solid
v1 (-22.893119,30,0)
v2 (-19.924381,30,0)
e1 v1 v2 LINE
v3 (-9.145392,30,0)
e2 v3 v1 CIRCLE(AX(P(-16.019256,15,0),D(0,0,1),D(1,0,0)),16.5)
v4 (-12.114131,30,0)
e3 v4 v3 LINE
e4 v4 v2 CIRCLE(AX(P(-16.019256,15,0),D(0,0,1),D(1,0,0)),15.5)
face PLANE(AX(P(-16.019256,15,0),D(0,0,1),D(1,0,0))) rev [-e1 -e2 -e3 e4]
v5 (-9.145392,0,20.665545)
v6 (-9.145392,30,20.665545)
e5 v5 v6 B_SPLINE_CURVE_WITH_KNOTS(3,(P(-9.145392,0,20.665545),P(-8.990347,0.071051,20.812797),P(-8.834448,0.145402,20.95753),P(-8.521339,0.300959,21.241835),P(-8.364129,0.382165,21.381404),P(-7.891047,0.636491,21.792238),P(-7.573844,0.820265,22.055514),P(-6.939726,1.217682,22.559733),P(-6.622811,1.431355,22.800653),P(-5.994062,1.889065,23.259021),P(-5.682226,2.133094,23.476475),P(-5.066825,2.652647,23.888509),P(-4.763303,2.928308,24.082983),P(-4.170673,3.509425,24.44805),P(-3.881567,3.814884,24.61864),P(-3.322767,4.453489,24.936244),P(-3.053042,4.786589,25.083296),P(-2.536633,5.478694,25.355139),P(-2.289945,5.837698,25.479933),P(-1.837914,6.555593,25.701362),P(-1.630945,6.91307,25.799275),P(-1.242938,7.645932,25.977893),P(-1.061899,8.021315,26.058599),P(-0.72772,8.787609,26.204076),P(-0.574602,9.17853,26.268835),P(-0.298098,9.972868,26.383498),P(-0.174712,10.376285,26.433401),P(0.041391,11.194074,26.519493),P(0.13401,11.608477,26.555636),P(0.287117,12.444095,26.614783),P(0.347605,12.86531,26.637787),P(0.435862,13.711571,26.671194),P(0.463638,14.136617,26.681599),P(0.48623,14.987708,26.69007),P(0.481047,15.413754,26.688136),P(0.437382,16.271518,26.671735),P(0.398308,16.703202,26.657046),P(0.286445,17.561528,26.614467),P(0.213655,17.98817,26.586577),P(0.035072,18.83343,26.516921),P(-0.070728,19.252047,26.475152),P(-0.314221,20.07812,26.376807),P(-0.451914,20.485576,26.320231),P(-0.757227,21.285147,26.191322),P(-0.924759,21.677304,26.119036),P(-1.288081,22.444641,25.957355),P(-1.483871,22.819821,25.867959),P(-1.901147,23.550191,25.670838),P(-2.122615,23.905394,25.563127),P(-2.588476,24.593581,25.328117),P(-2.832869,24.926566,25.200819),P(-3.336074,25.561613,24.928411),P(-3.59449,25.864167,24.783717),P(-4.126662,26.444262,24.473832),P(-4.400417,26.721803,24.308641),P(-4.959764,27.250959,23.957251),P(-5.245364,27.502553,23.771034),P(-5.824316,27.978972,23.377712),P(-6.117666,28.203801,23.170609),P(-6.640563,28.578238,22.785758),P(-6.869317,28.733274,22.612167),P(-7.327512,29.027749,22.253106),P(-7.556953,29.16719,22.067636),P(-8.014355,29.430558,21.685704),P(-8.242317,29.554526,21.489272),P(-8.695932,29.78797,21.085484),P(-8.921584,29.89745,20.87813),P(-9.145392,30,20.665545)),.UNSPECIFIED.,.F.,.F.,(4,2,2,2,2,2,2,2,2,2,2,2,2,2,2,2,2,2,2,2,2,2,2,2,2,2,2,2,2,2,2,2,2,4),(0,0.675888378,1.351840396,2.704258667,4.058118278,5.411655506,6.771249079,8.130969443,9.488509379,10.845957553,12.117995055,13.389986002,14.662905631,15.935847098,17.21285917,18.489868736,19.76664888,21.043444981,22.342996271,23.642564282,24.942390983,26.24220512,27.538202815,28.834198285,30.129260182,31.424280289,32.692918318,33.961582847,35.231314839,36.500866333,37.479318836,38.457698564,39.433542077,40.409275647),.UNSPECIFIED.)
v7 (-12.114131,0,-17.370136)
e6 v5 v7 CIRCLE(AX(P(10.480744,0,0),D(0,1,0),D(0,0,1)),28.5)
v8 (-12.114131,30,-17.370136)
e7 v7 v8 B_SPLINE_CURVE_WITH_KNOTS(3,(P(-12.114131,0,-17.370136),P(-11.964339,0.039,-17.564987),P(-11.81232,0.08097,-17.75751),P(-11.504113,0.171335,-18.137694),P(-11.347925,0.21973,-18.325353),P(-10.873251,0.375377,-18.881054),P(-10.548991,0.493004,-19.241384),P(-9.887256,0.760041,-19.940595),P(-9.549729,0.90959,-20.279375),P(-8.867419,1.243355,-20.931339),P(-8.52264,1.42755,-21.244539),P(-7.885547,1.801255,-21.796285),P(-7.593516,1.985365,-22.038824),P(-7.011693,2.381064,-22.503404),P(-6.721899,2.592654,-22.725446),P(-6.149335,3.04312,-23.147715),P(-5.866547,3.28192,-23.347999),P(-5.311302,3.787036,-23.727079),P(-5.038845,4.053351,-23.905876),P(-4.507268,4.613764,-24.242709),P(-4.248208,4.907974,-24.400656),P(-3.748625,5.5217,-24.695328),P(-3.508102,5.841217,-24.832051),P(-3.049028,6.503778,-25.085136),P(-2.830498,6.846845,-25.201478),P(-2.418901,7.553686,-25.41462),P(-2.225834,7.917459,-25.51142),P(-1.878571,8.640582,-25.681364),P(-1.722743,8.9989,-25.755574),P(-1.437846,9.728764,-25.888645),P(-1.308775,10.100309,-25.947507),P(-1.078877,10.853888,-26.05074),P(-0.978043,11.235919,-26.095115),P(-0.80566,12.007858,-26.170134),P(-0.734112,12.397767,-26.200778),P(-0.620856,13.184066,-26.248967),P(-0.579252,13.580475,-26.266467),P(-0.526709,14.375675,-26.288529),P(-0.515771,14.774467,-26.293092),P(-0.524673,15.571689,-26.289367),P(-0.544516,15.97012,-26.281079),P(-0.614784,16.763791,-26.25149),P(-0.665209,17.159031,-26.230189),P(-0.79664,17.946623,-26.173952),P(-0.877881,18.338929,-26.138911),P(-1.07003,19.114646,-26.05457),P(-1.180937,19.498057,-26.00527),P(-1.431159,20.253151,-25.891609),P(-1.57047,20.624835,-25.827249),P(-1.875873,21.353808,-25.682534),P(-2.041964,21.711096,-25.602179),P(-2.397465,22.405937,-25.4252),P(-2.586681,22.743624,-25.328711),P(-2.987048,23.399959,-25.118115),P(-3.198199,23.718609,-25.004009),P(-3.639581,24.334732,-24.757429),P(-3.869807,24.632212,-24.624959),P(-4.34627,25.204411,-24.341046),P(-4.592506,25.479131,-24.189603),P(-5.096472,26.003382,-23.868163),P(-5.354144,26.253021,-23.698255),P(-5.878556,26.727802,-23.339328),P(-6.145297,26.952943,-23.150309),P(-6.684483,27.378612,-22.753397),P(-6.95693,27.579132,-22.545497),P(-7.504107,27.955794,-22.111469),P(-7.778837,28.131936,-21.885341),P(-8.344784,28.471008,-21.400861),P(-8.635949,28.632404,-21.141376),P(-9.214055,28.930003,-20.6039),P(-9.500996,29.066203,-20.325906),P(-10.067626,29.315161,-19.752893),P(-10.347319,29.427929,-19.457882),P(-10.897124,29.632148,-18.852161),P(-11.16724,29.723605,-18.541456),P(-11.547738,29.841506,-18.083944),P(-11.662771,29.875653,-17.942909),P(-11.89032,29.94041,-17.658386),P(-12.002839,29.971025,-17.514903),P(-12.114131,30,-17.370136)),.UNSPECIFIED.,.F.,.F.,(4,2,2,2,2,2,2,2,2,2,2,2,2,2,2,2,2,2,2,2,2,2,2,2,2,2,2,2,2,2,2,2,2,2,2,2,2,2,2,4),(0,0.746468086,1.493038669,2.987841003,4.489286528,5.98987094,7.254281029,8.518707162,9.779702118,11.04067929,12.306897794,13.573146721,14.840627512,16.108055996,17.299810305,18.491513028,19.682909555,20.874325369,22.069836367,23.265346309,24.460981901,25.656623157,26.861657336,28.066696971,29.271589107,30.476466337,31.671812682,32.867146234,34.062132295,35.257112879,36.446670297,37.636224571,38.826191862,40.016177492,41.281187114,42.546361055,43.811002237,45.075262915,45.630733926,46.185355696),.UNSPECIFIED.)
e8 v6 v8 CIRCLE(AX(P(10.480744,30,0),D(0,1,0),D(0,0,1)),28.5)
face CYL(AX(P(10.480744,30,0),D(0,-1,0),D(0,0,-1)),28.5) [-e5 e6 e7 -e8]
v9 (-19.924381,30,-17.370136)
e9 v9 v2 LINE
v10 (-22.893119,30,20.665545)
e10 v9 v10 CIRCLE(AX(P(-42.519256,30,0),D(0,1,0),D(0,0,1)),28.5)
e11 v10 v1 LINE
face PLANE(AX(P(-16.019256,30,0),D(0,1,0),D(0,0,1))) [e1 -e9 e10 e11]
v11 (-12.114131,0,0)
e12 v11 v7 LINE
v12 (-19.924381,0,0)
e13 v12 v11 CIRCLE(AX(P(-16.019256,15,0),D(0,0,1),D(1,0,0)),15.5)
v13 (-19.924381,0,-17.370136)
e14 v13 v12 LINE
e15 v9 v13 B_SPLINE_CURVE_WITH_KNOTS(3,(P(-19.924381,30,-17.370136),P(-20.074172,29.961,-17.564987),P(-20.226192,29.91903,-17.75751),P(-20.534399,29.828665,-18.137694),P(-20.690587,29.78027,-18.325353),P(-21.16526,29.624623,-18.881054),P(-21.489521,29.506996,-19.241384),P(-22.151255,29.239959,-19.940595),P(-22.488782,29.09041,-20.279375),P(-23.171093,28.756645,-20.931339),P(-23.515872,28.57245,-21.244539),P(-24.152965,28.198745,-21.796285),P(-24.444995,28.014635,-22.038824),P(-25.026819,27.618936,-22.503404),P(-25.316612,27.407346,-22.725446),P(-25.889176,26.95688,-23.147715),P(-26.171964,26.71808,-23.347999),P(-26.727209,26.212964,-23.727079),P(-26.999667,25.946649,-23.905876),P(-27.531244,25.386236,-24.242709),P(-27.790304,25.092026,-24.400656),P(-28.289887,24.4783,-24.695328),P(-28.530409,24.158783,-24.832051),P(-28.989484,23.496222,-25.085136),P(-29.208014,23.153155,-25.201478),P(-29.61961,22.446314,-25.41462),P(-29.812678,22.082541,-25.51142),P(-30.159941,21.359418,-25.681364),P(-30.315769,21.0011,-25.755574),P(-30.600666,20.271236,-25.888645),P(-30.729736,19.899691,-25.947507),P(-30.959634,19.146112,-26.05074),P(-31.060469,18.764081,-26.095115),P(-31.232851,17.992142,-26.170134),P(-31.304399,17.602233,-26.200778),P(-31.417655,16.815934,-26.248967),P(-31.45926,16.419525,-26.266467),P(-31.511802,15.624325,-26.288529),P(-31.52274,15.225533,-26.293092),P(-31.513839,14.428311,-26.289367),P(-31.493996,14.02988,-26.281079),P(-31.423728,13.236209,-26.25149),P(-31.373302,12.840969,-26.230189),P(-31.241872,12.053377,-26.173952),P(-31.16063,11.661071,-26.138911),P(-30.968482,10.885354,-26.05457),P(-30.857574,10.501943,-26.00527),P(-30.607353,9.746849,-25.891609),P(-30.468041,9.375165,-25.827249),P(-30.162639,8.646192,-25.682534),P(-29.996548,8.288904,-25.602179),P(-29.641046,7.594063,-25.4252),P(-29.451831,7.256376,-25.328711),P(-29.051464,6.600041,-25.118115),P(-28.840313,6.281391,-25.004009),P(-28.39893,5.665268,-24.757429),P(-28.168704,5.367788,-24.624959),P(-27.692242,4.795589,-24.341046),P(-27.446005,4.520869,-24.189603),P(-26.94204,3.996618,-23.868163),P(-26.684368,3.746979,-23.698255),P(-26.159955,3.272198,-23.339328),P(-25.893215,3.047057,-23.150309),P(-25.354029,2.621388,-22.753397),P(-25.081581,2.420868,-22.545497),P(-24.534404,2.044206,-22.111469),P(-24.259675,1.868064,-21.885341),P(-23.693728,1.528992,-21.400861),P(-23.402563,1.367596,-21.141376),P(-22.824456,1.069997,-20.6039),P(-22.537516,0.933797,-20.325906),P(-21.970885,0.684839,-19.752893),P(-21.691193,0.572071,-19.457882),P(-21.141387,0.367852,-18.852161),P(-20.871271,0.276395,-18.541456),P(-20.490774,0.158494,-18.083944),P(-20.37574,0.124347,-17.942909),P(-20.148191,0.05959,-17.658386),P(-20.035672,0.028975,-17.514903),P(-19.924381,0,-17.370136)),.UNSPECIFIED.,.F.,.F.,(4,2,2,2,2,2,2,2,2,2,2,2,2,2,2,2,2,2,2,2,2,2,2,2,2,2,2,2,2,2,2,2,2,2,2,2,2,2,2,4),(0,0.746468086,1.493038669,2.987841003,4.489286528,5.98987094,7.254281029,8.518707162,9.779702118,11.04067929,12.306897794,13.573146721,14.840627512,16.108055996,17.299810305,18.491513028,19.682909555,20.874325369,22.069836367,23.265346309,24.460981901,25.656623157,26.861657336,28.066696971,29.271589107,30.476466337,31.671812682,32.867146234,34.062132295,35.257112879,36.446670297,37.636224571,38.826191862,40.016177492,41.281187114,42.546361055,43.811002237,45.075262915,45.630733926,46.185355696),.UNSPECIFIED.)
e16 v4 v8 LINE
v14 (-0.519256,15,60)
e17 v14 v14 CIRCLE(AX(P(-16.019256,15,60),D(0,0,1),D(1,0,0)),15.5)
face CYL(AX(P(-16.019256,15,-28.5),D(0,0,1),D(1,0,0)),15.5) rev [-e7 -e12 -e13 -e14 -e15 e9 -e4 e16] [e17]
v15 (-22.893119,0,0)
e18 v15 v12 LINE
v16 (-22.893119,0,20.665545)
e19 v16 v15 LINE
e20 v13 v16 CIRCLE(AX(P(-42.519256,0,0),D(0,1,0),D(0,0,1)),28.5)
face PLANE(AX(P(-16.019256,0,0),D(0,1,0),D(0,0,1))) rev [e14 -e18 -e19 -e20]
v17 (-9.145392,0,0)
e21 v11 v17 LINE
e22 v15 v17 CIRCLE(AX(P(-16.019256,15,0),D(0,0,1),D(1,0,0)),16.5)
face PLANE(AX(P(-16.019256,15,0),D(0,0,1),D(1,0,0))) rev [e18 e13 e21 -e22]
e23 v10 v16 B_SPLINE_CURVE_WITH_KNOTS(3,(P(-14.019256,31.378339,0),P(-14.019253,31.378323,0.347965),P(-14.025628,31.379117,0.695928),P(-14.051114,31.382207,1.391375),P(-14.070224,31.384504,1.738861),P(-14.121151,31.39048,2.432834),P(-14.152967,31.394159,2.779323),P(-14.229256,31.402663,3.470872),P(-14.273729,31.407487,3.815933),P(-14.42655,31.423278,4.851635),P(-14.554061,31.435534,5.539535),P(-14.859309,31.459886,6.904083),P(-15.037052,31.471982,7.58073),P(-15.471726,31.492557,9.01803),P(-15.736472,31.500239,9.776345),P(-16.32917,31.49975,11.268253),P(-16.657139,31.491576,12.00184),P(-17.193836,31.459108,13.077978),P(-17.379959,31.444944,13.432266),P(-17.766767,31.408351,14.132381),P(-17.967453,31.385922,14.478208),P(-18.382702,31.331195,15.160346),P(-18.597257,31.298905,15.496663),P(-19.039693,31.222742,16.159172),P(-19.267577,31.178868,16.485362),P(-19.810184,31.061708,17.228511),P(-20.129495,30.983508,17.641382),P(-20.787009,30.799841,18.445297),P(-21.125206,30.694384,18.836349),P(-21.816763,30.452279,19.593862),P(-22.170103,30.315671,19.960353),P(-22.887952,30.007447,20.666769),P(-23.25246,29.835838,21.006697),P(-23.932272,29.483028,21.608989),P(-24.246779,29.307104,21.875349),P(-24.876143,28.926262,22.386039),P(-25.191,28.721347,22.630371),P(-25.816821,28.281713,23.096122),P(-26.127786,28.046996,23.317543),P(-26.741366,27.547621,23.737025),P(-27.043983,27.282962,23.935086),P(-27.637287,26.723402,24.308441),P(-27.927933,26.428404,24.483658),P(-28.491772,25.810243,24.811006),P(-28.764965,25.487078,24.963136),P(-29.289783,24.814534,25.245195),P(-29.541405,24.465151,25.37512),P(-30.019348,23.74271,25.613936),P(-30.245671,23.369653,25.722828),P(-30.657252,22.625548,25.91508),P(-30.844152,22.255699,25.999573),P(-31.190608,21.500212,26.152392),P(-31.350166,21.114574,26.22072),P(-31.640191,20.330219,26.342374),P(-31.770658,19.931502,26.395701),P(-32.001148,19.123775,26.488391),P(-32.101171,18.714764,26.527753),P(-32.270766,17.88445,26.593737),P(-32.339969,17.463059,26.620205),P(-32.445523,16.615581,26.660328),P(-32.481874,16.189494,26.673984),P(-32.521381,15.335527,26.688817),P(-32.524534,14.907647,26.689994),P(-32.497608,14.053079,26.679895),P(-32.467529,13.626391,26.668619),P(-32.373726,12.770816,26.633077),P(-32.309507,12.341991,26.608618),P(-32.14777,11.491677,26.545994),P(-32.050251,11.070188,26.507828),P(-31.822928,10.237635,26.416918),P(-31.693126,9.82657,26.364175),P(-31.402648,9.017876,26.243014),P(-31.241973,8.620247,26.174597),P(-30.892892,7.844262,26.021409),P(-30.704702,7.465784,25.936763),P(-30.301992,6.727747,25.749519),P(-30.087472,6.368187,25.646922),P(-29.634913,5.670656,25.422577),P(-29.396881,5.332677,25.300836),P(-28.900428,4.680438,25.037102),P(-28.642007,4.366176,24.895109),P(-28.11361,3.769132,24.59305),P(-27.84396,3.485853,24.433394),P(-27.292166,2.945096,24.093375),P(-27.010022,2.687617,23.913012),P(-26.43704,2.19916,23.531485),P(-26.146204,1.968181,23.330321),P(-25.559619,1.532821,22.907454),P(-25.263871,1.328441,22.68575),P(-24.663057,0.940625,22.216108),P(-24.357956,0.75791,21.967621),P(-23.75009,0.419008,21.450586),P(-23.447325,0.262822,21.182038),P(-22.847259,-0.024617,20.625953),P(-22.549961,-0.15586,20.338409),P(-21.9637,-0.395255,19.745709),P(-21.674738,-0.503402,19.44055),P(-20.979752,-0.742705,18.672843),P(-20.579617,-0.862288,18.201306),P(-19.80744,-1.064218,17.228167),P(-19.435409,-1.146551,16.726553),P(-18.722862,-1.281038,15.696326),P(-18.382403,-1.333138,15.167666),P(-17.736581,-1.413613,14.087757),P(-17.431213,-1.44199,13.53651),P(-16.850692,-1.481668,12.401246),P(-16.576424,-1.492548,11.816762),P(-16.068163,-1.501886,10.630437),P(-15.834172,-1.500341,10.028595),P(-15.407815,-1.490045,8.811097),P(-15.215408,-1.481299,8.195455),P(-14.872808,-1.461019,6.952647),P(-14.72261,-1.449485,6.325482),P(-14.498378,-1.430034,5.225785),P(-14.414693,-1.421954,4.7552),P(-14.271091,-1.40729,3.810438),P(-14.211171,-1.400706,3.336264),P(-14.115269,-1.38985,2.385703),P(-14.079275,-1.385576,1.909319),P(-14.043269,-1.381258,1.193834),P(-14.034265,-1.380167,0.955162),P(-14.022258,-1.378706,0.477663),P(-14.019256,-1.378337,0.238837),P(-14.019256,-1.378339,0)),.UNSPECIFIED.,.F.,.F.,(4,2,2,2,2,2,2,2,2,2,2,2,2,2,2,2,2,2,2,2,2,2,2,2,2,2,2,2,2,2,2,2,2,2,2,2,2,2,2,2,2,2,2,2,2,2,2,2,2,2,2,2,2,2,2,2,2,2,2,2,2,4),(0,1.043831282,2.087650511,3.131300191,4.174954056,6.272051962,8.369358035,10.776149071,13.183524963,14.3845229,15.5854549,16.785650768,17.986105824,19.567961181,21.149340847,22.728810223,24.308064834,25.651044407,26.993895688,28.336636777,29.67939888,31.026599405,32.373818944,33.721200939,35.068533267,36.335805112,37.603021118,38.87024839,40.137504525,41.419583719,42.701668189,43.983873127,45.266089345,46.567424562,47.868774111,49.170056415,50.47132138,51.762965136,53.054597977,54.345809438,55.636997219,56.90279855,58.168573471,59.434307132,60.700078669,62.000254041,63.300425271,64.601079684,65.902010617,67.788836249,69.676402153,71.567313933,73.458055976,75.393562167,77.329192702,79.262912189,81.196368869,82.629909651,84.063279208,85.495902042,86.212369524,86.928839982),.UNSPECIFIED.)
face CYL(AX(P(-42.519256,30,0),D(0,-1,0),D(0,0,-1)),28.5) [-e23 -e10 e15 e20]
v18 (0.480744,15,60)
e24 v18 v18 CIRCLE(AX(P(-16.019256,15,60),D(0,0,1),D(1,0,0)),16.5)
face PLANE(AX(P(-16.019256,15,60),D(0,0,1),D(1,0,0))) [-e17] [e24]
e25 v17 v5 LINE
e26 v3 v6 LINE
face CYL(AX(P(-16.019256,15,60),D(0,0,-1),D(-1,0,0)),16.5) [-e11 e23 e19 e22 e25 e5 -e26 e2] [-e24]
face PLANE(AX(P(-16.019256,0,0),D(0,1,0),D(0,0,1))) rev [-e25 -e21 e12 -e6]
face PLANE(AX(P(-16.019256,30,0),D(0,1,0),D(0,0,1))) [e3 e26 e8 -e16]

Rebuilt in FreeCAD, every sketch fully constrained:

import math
import FreeCAD as App
import Part
import Sketcher

V = App.Vector

doc = App.newDocument("Part")
params = doc.addObject("Spreadsheet::Sheet", "Params")
for row, (alias, value) in enumerate([
    ("sketch1_radius", "28.5 mm"),
    ("pad1_length", "30 mm"),
    ("sketch2_diameter", "33 mm"),
    ("pad2_length", "60 mm"),
    ("sketch3_diameter", "31 mm"),
], start=1):
    params.set(f"A{row}", alias)
    params.set(f"B{row}", "=" + value)
    params.setAlias(f"B{row}", alias)

body = doc.addObject("PartDesign::Body", "Body")

sketch1 = body.newObject("Sketcher::SketchObject", "Sketch")
sketch1.AttachmentSupport = (doc.getObject("XZ_Plane"), [""])
sketch1.MapMode = "FlatFace"
sketch1.addGeometry([
    Part.ArcOfCircle(Part.Circle(V(-43, 0, 0), V(0, 0, 1), 28), math.radians(22), math.radians(338)),
    Part.ArcOfCircle(Part.Circle(V(10, 0, 0), V(0, 0, 1), 28), math.radians(-158), math.radians(158)),
], False)
sketch1.addConstraint([
    Sketcher.Constraint("Coincident", 0, 1, 1, 2),
    Sketcher.Constraint("Coincident", 1, 1, 0, 2),
    Sketcher.Constraint("Equal", 0, 1),
    Sketcher.Constraint("Symmetric", 0, 1, 1, 1, -1),
    Sketcher.Constraint("Radius", 0, 28.5),
    Sketcher.Constraint("DistanceX", 0, 3, 1, 3, 53.0),
    Sketcher.Constraint("DistanceX", 0, 3, -1, 1, 42.519256),
])
sketch1.setExpression("Constraints[4]", "Params.sketch1_radius")
pad1 = body.newObject("PartDesign::Pad", "Pad")
pad1.Profile = sketch1
pad1.setExpression("Length", "Params.pad1_length")
pad1.Reversed = True

sketch2 = body.newObject("Sketcher::SketchObject", "Sketch001")
sketch2.AttachmentSupport = (doc.getObject("XY_Plane"), [""])
sketch2.MapMode = "FlatFace"
sketch2.addGeometry(Part.Circle(V(-16, 15, 0), V(0, 0, 1), 16), False)
sketch2.addConstraint([
    Sketcher.Constraint("Diameter", 0, 33.0),
    Sketcher.Constraint("DistanceY", -1, 1, 0, 3, 15.0),
    Sketcher.Constraint("DistanceX", 0, 3, -1, 1, 16.019256),
])
sketch2.setExpression("Constraints[0]", "Params.sketch2_diameter")
pad2 = body.newObject("PartDesign::Pad", "Pad001")
pad2.Profile = sketch2
pad2.setExpression("Length", "Params.pad2_length")

sketch3 = body.newObject("Sketcher::SketchObject", "Sketch002")
sketch3.AttachmentSupport = (doc.getObject("XY_Plane"), [""])
sketch3.MapMode = "FlatFace"
sketch3.AttachmentOffset = App.Placement(V(0, 0, 60), App.Rotation())
sketch3.addGeometry(Part.Circle(V(-16, 15, 0), V(0, 0, 1), 16), False)
sketch3.addConstraint([
    Sketcher.Constraint("Diameter", 0, 31.0),
    Sketcher.Constraint("DistanceY", -1, 1, 0, 3, 15.0),
    Sketcher.Constraint("DistanceX", 0, 3, -1, 1, 16.019256),
])
sketch3.setExpression("Constraints[0]", "Params.sketch3_diameter")
pocket1 = body.newObject("PartDesign::Pocket", "Pocket")
pocket1.Profile = sketch3
pocket1.Type = "ThroughAll"

doc.recompute()
